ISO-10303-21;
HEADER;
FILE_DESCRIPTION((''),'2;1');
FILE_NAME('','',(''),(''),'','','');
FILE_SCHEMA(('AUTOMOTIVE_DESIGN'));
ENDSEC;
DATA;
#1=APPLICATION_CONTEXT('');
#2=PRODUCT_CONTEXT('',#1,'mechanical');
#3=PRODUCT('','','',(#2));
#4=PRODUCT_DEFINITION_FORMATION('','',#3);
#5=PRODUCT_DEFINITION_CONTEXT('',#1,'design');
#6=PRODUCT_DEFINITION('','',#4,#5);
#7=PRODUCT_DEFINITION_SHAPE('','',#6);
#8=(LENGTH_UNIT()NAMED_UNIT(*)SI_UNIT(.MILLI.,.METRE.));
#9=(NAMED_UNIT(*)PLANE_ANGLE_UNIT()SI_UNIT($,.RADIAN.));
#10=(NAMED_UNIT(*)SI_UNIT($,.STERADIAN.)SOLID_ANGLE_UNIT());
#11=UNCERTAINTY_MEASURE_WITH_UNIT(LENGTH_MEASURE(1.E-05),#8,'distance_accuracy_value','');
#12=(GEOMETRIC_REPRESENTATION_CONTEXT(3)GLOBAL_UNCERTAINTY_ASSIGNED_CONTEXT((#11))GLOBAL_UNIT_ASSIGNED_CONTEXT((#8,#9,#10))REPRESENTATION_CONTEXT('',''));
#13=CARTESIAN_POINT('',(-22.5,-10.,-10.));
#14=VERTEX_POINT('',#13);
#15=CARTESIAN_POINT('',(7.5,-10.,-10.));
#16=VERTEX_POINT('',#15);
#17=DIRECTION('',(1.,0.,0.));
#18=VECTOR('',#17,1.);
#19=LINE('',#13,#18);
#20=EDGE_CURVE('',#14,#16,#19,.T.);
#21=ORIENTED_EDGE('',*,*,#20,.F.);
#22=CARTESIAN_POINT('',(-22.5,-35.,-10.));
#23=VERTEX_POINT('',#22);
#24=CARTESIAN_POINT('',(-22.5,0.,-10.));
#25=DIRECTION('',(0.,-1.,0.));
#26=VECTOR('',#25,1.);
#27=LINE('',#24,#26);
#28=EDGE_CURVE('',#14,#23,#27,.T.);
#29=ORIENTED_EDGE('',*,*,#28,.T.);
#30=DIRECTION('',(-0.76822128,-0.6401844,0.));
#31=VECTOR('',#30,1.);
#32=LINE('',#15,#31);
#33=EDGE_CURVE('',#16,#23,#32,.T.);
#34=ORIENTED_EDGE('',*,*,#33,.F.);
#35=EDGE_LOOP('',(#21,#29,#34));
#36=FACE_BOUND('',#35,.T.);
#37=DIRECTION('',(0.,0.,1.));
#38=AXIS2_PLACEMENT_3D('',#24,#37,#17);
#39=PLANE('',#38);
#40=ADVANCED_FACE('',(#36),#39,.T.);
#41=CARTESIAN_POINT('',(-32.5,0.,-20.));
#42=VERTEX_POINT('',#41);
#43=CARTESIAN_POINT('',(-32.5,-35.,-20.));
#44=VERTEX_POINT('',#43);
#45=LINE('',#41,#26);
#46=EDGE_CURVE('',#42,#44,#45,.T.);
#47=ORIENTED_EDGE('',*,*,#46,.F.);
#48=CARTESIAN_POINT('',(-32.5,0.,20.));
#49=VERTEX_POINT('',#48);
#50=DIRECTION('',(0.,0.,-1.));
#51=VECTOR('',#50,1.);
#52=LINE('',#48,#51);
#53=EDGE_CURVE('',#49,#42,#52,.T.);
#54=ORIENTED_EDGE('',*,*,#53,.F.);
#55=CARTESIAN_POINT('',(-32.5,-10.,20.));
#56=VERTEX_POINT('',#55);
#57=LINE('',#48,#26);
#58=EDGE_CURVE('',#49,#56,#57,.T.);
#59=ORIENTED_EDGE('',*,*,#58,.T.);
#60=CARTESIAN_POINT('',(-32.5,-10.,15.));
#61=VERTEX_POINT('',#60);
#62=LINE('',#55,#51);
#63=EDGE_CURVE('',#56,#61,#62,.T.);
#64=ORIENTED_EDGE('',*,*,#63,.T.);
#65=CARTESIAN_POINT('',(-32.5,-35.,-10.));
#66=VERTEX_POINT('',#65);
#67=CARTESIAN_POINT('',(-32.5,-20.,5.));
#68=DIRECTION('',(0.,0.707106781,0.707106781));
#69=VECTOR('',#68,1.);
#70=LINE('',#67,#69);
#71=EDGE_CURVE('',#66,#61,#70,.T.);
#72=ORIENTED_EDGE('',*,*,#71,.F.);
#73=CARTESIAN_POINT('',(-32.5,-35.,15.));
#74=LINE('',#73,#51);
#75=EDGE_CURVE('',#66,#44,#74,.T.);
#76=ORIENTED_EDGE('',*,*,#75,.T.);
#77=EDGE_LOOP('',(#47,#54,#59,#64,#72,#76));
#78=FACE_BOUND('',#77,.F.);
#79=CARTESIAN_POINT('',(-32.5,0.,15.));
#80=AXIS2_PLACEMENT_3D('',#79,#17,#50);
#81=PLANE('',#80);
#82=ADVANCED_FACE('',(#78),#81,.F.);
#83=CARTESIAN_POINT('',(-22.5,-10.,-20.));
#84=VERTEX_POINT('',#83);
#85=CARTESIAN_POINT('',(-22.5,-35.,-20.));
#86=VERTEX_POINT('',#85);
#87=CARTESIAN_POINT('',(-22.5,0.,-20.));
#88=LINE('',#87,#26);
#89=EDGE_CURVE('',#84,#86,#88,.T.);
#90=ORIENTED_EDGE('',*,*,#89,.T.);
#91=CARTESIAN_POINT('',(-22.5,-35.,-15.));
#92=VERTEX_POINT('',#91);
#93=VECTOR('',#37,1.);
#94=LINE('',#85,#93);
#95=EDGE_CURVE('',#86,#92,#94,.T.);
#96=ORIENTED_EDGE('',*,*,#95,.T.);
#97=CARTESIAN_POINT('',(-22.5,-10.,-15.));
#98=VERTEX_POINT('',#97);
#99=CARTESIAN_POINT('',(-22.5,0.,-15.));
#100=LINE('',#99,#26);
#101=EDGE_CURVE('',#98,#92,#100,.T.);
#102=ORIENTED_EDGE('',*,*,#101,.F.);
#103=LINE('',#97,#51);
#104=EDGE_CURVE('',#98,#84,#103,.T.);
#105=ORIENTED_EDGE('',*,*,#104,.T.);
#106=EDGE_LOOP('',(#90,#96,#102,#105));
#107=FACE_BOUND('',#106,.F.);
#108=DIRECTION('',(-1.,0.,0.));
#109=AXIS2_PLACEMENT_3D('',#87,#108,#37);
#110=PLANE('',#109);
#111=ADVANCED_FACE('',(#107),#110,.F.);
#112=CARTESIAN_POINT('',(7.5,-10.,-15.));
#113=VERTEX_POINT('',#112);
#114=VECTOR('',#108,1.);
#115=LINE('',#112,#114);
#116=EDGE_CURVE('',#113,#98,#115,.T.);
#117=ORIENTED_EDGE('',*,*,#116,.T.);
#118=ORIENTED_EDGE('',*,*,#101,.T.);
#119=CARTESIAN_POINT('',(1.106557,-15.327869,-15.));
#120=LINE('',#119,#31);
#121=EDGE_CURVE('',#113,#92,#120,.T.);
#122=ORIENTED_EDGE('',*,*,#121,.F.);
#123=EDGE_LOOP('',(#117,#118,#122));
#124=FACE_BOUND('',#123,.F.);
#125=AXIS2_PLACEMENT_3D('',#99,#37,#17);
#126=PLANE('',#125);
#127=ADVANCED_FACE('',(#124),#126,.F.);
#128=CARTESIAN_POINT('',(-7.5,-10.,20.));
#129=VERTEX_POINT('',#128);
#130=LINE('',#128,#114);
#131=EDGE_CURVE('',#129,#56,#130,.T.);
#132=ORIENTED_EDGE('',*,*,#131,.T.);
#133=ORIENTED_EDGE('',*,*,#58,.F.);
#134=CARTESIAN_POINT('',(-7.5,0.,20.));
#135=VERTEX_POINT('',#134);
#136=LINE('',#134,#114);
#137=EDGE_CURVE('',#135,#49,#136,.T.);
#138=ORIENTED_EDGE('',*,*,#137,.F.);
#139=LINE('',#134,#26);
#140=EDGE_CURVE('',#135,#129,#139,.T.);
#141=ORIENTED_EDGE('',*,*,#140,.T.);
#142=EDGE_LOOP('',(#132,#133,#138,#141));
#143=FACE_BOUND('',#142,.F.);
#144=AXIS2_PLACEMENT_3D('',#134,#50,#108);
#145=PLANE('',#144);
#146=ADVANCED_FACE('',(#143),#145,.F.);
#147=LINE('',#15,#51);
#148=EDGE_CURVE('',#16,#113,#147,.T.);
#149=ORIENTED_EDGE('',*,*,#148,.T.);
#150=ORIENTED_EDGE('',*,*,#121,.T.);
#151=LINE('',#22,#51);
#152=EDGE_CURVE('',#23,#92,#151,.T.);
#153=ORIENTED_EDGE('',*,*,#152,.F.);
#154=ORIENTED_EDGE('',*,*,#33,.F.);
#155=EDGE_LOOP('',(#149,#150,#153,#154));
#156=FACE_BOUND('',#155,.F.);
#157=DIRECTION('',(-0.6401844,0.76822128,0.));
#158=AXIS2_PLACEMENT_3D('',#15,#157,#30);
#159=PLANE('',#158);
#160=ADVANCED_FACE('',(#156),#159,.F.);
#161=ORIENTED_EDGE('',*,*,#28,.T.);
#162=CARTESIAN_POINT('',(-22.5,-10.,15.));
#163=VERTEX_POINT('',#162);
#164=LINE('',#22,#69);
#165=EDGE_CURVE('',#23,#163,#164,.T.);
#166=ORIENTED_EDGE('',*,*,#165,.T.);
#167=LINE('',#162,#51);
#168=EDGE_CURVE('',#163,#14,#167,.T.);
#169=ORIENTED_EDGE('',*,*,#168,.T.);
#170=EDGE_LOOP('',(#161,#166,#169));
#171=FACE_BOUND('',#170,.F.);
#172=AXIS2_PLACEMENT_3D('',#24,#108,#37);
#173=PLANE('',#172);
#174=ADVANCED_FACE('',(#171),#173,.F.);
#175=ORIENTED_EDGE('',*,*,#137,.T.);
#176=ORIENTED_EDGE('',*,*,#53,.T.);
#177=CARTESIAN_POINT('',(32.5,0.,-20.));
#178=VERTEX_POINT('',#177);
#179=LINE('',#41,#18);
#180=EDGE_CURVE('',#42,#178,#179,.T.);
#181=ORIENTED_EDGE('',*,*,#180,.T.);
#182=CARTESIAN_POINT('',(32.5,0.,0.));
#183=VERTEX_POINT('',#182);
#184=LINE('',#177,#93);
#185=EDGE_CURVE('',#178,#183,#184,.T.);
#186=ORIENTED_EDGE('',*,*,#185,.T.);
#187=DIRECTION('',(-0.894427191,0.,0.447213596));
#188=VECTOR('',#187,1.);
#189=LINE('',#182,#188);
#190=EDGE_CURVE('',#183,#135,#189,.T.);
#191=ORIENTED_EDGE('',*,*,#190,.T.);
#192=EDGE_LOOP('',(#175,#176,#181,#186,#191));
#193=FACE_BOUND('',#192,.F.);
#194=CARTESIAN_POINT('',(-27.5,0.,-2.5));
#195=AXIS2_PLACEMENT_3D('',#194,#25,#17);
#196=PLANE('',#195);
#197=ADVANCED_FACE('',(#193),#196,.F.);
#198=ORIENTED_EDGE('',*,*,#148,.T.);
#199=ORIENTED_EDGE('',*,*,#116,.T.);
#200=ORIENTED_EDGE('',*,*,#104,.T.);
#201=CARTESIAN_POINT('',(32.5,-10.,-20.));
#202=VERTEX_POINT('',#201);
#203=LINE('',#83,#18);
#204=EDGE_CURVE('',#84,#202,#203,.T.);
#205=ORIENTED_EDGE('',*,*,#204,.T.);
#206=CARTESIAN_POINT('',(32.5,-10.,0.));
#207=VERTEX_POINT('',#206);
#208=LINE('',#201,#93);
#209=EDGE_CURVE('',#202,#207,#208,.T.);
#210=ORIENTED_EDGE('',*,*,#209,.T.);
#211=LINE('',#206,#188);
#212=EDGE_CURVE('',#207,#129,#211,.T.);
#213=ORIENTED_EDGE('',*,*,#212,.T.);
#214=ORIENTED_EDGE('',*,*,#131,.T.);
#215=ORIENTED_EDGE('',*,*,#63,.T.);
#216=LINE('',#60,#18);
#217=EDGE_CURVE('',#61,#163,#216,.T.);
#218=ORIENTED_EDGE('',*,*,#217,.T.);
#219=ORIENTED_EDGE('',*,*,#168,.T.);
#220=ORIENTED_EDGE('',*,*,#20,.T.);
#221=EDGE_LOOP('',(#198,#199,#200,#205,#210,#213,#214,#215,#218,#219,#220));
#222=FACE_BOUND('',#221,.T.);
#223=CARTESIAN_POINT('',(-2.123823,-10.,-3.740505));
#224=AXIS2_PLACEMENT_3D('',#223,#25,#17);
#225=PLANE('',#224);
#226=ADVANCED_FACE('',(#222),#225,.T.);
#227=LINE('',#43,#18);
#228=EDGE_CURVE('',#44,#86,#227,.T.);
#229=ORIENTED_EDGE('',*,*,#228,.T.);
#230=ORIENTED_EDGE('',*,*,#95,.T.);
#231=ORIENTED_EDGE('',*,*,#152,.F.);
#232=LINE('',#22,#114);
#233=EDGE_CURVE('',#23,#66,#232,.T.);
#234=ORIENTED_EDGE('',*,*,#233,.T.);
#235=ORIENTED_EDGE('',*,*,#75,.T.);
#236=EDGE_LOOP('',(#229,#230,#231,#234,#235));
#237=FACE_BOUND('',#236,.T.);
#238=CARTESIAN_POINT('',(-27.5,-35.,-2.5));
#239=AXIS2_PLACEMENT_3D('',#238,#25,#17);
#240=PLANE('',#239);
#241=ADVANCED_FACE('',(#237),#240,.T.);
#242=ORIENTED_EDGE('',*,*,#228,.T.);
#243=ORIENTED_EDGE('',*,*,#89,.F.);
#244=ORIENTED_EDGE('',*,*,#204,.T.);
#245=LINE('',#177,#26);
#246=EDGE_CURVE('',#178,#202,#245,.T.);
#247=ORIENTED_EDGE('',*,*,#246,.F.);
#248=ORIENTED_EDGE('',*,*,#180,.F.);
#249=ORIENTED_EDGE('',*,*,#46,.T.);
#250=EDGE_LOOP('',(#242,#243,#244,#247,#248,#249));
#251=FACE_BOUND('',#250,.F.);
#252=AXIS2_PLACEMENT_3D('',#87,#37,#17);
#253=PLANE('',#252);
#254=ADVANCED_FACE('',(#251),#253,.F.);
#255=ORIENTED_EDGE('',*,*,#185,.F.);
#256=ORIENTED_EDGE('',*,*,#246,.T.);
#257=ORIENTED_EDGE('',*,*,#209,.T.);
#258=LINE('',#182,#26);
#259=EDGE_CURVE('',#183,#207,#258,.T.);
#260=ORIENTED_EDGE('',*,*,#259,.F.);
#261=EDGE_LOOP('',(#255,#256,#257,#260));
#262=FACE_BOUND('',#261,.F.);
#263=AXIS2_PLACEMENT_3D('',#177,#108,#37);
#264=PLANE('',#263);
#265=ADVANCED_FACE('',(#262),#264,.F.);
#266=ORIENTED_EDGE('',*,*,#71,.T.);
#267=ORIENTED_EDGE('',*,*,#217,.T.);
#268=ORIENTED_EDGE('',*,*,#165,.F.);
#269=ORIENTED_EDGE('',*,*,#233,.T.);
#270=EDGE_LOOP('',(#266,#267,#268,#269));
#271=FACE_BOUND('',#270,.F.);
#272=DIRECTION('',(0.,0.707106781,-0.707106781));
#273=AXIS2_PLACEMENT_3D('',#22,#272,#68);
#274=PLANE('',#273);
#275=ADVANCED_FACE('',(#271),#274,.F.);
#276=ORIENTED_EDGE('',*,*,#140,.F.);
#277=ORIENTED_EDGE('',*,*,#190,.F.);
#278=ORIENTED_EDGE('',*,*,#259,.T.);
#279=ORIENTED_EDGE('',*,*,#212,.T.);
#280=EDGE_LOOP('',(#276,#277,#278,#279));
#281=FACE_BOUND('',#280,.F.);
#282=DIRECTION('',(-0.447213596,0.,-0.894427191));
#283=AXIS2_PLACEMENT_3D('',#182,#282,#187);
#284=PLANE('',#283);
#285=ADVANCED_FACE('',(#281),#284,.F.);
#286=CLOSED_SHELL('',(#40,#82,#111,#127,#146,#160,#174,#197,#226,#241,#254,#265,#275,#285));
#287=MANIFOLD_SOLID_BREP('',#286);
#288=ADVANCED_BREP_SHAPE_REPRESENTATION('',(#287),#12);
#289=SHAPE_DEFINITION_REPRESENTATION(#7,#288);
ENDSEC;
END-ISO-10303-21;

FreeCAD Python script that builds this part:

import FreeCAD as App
import Part
import Sketcher
from FreeCAD import Vector
Q = App.Units.Quantity


def add_polygon(sketch, points):
    """Adds a closed chain of lines whose ends are joined by coincident constraints."""
    first, n = sketch.GeometryCount, len(points)
    for a, b in zip(points, points[1:] + points[:1]):
        sketch.addGeometry(Part.LineSegment(App.Vector(*a, 0), App.Vector(*b, 0)), False)
    for i in range(n):
        sketch.addConstraint(Sketcher.Constraint("Coincident", first + i, 2, first + (i + 1) % n, 1))

doc = App.newDocument("Part")
body = doc.addObject("PartDesign::Body", "Body")

sketch1 = body.newObject("Sketcher::SketchObject", "Sketch")
sketch1.AttachmentSupport = (doc.getObject("XZ_Plane"), [""])
sketch1.MapMode = "FlatFace"
add_polygon(sketch1, [(-7.5, 20), (-32.5, 20), (-32.5, 15), (-22.5, 15), (-22.5, -10), (7.5, -10), (7.5, -15), (-22.5, -15), (-22.5, -20), (32.5, -20), (32.5, 0)])
sketch1.addConstraint(Sketcher.Constraint("Horizontal", 0))
sketch1.addConstraint(Sketcher.Constraint("Vertical", 1))
sketch1.addConstraint(Sketcher.Constraint("Horizontal", 2))
sketch1.addConstraint(Sketcher.Constraint("Vertical", 3))
sketch1.addConstraint(Sketcher.Constraint("Horizontal", 4))
sketch1.addConstraint(Sketcher.Constraint("Vertical", 5))
sketch1.addConstraint(Sketcher.Constraint("Horizontal", 6))
sketch1.addConstraint(Sketcher.Constraint("Vertical", 7))
sketch1.addConstraint(Sketcher.Constraint("Horizontal", 8))
sketch1.addConstraint(Sketcher.Constraint("Vertical", 9))
sketch1.addConstraint(Sketcher.Constraint("Symmetric", 0, 2, 8, 2, -1, 1))
sketch1.addConstraint(Sketcher.Constraint("Symmetric", 2, 2, 6, 2, -1))
sketch1.addConstraint(Sketcher.Constraint("PointOnObject", 9, 2, -1))
sketch1.addConstraint(Sketcher.Constraint("Equal", 0, 3))
sketch1.addConstraint(Sketcher.Constraint("Equal", 1, 5))
sketch1.addConstraint(Sketcher.Constraint("DistanceX", 0, 2, 0, 1, Q("25 mm")))
sketch1.addConstraint(Sketcher.Constraint("DistanceX", 2, 1, 2, 2, Q("10 mm")))
sketch1.addConstraint(Sketcher.Constraint("DistanceX", 4, 1, 4, 2, Q("30 mm")))
sketch1.addConstraint(Sketcher.Constraint("DistanceX", 8, 1, 8, 2, Q("55 mm")))
sketch1.addConstraint(Sketcher.Constraint("DistanceY", 1, 2, 1, 1, Q("5 mm")))
pad1 = body.newObject("PartDesign::Pad", "Pad")
pad1.Profile = sketch1
pad1.Length = 10

sketch2 = body.newObject("Sketcher::SketchObject", "Sketch001")
sketch2.AttachmentSupport = (doc.getObject("XZ_Plane"), [""])
sketch2.MapMode = "FlatFace"
add_polygon(sketch2, [(-22.5, 15), (-32.5, 15), (-32.5, -20), (-22.5, -20), (-22.5, -15), (7.5, -15), (7.5, -10), (-22.5, -10)])
sketch2.addConstraint(Sketcher.Constraint("Horizontal", 0))
sketch2.addConstraint(Sketcher.Constraint("Vertical", 1))
sketch2.addConstraint(Sketcher.Constraint("Horizontal", 2))
sketch2.addConstraint(Sketcher.Constraint("Vertical", 3))
sketch2.addConstraint(Sketcher.Constraint("Horizontal", 4))
sketch2.addConstraint(Sketcher.Constraint("Vertical", 5))
sketch2.addConstraint(Sketcher.Constraint("Horizontal", 6))
sketch2.addConstraint(Sketcher.Constraint("Vertical", 7))
sketch2.addConstraint(Sketcher.Constraint("Symmetric", 3, 2, 7, 2, -1))
sketch2.addConstraint(Sketcher.Constraint("Equal", 3, 5))
sketch2.addConstraint(Sketcher.Constraint("DistanceX", 0, 2, 0, 1, Q("10 mm")))
sketch2.addConstraint(Sketcher.Constraint("DistanceX", 4, 1, 4, 2, Q("30 mm")))
sketch2.addConstraint(Sketcher.Constraint("DistanceY", 1, 2, 1, 1, Q("35 mm")))
sketch2.addConstraint(Sketcher.Constraint("DistanceY", 3, 1, 3, 2, Q("5 mm")))
sketch2.addConstraint(Sketcher.Constraint("DistanceX", 0, 2, -1, 1, Q("32.5 mm")))
pad2 = body.newObject("PartDesign::Pad", "Pad001")
pad2.Profile = sketch2
pad2.Length = 35

sketch3 = body.newObject("Sketcher::SketchObject", "Sketch002")
sketch3.AttachmentSupport = (doc.getObject("XY_Plane"), [""])
sketch3.MapMode = "FlatFace"
sketch3.AttachmentOffset = App.Placement(Vector(0, 0, -10), App.Rotation())
add_polygon(sketch3, [(7.5, -10), (-22.5, -35), (7.5, -35)])
sketch3.addConstraint(Sketcher.Constraint("Horizontal", 1))
sketch3.addConstraint(Sketcher.Constraint("Vertical", 2))
sketch3.addConstraint(Sketcher.Constraint("DistanceX", 1, 1, 1, 2, Q("30 mm")))
sketch3.addConstraint(Sketcher.Constraint("DistanceY", 2, 1, 2, 2, Q("25 mm")))
sketch3.addConstraint(Sketcher.Constraint("DistanceY", 0, 2, -1, 1, Q("35 mm")))
sketch3.addConstraint(Sketcher.Constraint("DistanceX", 0, 2, -1, 1, Q("22.5 mm")))
pocket1 = body.newObject("PartDesign::Pocket", "Pocket")
pocket1.Profile = sketch3
pocket1.Type = "ThroughAll"

sketch4 = body.newObject("Sketcher::SketchObject", "Sketch003")
sketch4.AttachmentSupport = (doc.getObject("YZ_Plane"), [""])
sketch4.MapMode = "FlatFace"
sketch4.AttachmentOffset = App.Placement(Vector(0, 0, -22.5), App.Rotation())
add_polygon(sketch4, [(-35, 15), (-35, -10), (-10, 15)])
sketch4.addConstraint(Sketcher.Constraint("Vertical", 0))
sketch4.addConstraint(Sketcher.Constraint("Horizontal", 2))
sketch4.addConstraint(Sketcher.Constraint("Equal", 2, 0))
sketch4.addConstraint(Sketcher.Constraint("DistanceX", 2, 2, 2, 1, Q("25 mm")))
sketch4.addConstraint(Sketcher.Constraint("DistanceX", 0, 2, -1, 1, Q("35 mm")))
sketch4.addConstraint(Sketcher.Constraint("DistanceY", 0, 2, -1, 1, Q("10 mm")))
pocket2 = body.newObject("PartDesign::Pocket", "Pocket001")
pocket2.Profile = sketch4
pocket2.Type = "ThroughAll"

doc.recompute()
